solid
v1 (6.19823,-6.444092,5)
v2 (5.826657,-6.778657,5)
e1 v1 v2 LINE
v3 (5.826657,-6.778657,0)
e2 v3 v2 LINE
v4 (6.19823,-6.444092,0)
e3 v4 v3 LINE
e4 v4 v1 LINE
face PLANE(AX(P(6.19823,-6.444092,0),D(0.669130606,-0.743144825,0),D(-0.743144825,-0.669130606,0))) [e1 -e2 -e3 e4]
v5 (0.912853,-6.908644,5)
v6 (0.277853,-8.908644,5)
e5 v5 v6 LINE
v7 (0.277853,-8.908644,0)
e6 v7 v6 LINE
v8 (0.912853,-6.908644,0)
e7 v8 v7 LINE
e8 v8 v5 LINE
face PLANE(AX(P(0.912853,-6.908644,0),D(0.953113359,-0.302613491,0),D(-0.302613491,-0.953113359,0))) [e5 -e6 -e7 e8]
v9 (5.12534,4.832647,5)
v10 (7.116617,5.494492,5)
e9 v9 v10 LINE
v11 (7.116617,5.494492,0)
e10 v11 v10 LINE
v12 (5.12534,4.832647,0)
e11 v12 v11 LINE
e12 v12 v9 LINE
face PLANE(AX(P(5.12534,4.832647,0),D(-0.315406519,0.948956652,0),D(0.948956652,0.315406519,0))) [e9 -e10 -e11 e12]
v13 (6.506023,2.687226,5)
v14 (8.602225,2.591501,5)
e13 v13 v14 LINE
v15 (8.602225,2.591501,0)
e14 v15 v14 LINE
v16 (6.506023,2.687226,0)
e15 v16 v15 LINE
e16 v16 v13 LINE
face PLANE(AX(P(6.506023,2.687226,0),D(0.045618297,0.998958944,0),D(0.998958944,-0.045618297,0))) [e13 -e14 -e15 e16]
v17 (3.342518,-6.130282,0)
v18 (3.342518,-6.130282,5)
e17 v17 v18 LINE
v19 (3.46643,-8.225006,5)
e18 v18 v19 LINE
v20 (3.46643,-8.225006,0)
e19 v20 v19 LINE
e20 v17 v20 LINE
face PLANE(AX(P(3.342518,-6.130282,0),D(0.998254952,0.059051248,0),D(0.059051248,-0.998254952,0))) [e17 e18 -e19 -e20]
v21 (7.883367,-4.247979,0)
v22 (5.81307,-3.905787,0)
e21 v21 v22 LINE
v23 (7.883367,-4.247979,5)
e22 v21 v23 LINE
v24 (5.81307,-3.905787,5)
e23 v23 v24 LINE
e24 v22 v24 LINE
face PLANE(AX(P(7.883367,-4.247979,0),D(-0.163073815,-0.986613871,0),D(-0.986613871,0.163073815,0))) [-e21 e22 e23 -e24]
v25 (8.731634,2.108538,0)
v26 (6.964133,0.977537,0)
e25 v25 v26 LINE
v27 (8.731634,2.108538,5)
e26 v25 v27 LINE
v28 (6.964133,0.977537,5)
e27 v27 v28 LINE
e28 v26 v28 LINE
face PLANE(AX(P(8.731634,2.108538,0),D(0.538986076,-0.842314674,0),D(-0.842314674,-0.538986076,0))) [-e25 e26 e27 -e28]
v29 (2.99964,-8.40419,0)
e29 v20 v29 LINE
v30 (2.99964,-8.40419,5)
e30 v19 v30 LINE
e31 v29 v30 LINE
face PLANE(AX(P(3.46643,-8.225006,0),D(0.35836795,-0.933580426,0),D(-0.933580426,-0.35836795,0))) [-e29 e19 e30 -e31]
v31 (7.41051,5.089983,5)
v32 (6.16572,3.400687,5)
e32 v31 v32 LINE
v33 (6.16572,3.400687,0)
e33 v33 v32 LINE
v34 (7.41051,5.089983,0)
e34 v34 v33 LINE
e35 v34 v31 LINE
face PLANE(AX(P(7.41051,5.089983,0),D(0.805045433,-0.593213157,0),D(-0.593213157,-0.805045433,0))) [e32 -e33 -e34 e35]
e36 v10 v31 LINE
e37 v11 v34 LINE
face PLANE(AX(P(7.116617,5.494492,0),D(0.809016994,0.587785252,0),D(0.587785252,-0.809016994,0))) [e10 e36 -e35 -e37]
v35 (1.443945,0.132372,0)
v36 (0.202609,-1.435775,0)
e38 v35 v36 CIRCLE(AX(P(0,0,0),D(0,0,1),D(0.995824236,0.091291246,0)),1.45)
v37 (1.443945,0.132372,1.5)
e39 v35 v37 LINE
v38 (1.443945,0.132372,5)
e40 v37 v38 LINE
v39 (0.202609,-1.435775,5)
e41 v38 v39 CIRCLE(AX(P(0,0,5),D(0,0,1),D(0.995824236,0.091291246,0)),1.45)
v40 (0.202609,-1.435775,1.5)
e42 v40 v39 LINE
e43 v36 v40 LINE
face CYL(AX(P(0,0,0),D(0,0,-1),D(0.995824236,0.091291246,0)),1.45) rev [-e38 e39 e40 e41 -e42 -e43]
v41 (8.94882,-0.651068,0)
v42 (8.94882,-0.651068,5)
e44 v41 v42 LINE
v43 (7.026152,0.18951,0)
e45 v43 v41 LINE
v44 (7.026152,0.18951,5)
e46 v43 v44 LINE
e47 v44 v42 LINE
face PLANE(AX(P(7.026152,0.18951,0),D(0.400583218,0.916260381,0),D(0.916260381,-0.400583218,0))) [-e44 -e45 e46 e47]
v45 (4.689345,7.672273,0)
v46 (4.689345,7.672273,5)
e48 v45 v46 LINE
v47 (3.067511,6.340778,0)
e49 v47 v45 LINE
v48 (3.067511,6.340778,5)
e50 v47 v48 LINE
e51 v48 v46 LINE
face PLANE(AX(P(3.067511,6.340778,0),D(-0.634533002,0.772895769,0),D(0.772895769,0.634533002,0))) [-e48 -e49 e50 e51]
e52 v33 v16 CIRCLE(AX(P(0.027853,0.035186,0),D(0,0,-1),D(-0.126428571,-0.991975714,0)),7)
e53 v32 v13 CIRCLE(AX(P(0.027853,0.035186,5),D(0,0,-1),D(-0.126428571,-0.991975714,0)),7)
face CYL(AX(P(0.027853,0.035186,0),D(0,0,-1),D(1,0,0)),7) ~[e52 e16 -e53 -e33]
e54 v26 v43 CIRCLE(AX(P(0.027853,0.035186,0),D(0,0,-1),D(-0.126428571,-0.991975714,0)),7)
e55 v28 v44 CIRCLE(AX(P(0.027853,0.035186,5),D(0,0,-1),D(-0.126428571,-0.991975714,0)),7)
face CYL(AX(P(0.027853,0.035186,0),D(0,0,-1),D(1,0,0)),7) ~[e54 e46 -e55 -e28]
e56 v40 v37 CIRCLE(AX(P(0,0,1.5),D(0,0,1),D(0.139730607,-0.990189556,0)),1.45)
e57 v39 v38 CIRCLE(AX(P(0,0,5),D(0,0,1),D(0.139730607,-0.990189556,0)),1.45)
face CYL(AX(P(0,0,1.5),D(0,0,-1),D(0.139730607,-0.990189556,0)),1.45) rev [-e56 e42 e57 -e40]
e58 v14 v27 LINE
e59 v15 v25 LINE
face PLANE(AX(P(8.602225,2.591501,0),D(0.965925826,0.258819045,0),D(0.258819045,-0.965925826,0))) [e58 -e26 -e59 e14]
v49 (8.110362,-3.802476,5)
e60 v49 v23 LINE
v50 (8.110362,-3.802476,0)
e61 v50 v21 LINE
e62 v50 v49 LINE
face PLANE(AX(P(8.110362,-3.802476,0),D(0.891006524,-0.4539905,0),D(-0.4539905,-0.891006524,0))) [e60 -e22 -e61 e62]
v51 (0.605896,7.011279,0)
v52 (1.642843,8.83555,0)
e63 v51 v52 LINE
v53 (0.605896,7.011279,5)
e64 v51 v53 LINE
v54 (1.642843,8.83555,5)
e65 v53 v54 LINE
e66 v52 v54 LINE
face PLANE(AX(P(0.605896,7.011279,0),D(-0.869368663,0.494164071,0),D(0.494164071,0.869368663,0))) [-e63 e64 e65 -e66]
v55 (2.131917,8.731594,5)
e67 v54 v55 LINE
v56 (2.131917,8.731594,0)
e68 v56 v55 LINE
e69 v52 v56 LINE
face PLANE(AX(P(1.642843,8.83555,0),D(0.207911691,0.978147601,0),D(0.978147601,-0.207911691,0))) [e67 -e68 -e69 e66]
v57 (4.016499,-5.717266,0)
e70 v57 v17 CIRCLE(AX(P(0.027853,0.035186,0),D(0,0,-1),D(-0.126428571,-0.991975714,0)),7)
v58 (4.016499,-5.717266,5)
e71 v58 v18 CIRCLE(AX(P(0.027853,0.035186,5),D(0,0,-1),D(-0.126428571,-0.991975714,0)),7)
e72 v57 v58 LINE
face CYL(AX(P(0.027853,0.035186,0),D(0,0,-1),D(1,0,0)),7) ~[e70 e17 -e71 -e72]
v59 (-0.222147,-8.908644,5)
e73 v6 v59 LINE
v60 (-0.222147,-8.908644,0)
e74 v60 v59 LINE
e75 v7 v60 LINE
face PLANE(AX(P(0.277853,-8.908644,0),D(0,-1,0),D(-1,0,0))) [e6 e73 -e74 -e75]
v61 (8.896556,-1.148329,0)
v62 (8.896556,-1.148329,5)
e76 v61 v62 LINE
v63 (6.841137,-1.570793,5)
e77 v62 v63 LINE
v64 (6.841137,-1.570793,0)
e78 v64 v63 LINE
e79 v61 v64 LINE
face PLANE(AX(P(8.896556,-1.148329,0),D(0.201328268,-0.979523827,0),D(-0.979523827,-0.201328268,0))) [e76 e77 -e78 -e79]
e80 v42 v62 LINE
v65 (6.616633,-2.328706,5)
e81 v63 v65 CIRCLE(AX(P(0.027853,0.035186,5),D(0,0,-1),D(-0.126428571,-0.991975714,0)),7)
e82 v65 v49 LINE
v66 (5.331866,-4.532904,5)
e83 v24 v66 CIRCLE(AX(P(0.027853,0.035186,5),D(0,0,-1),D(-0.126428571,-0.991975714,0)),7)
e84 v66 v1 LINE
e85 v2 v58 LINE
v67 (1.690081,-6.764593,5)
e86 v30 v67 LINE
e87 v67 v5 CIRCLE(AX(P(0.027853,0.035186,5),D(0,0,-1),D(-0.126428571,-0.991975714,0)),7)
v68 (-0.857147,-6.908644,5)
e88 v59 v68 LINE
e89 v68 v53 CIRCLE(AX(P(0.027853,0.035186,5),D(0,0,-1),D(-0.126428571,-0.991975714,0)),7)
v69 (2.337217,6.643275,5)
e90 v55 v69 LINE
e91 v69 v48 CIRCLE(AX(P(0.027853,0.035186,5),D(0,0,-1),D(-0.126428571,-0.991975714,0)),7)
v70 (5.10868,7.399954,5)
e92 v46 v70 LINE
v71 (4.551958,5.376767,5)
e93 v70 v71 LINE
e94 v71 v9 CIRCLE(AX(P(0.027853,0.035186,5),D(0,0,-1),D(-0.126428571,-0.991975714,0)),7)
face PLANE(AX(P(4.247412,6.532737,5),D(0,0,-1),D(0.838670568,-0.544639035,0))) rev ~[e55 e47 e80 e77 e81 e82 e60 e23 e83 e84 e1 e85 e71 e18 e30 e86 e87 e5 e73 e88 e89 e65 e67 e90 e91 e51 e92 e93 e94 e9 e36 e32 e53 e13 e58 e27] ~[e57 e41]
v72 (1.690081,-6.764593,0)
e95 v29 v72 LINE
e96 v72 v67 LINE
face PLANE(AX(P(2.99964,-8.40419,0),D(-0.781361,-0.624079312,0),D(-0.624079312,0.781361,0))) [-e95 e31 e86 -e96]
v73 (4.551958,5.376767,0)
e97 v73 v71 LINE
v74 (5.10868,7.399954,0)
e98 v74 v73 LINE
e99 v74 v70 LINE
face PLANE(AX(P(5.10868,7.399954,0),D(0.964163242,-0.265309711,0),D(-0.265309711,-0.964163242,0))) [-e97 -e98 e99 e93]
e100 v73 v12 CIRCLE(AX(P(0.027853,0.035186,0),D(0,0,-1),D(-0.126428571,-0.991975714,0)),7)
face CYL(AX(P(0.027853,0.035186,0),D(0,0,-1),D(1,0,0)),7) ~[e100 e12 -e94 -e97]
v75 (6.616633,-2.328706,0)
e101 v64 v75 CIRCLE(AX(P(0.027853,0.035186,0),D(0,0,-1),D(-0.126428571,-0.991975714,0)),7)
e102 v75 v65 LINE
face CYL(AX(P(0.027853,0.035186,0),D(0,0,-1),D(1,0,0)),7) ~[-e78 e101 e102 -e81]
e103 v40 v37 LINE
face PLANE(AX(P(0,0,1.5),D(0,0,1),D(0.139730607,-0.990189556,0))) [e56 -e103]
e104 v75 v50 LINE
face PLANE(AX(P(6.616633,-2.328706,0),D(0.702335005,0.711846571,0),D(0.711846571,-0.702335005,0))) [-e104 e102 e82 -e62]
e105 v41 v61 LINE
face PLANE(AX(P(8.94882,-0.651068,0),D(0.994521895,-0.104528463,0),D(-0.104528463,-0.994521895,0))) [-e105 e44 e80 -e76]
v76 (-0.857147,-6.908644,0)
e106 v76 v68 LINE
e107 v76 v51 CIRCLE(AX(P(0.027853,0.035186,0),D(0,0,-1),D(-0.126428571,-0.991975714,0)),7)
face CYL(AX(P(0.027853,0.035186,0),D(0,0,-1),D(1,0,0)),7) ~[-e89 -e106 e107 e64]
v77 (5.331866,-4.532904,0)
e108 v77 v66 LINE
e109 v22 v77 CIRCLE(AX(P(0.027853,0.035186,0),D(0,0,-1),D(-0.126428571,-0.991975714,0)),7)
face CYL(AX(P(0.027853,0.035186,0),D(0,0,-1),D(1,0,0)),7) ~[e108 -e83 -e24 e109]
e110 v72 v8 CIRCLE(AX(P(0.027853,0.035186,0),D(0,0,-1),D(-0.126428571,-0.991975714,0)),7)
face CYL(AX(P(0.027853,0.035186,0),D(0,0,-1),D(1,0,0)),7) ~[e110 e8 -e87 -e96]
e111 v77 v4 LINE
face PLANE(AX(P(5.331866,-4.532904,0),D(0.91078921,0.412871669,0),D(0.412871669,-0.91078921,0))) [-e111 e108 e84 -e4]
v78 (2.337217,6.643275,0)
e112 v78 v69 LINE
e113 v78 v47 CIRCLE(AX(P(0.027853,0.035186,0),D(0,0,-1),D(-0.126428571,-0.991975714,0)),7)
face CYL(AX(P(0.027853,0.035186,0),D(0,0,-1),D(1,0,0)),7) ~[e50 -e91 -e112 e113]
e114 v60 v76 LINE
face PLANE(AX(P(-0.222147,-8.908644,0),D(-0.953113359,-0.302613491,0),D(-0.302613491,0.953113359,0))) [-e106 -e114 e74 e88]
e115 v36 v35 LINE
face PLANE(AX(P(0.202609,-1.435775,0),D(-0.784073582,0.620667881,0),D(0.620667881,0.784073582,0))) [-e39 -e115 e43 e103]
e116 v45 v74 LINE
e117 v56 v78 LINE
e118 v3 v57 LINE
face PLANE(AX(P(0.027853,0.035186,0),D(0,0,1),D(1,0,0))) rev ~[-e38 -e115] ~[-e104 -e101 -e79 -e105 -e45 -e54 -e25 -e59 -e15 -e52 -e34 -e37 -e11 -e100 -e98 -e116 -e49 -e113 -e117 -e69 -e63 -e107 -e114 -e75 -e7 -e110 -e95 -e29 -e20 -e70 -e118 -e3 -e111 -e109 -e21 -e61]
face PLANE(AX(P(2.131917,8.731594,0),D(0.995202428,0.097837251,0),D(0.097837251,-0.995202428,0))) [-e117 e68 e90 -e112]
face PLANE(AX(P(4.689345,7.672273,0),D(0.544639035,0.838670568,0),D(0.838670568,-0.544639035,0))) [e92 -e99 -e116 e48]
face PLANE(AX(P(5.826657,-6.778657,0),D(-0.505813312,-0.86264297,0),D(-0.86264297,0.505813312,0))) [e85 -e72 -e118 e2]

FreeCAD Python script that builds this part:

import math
import FreeCAD as App
import Part
import Sketcher
Q = App.Units.Quantity


def add_polygon(sketch, points):
    """Adds a closed chain of lines whose ends are joined by coincident constraints."""
    first, n = sketch.GeometryCount, len(points)
    for a, b in zip(points, points[1:] + points[:1]):
        sketch.addGeometry(Part.LineSegment(App.Vector(*a, 0), App.Vector(*b, 0)), False)
    for i in range(n):
        sketch.addConstraint(Sketcher.Constraint("Coincident", first + i, 2, first + (i + 1) % n, 1))

doc = App.newDocument("Part")
params = doc.addObject("Spreadsheet::Sheet", "Params")
for row, (alias, value) in enumerate([
    ("sketch1_diameter", "14 mm"),
    ("sketch1_radius", "1.45 mm"),
    ("sketch1_length", "2 mm"),
    ("pad1_length", "5 mm"),
    ("sketch2_width", "0.5 mm"),
    ("sketch2_width2", "1.77 mm"),
    ("pad2_length", "5 mm"),
    ("sketch3_diameter", "2.9 mm"),
    ("pocket1_length", "3.5 mm"),
], start=1):
    params.set(f"A{row}", alias)
    params.set(f"B{row}", "=" + value)
    params.setAlias(f"B{row}", alias)

body = doc.addObject("PartDesign::Body", "Body")

# Sketch on XY plane
sketch1 = body.newObject("Sketcher::SketchObject", "Sketch")
sketch1.AttachmentSupport = (doc.getObject("XY_Plane"), [""])
sketch1.MapMode = "FlatFace"
sketch1.addGeometry([
    Part.Circle(App.Vector(0.027853, 0.035186, 0), App.Vector(0, 0, 1), 7),
    Part.LineSegment(App.Vector(1.443945, 0.132372, 0), App.Vector(0.202609, -1.435775, 0)),
    Part.ArcOfCircle(Part.Circle(App.Vector(0, 0, 0), App.Vector(0, 0, 1), 1.45), math.radians(5.237896), math.radians(278.032258)),
], False)
sketch1.addConstraint([
    Sketcher.Constraint("Coincident", 1, 1, 2, 1),
    Sketcher.Constraint("Coincident", 2, 2, 1, 2),
    Sketcher.Constraint("Coincident", 2, 3, -1, 1),
    Sketcher.Constraint("Diameter", 0, Q("14 mm")),
    Sketcher.Constraint("Radius", 2, Q("1.45 mm")),
    Sketcher.Constraint("Distance", 1, Q("2 mm")),
    Sketcher.Constraint("DistanceX", -1, 1, 2, 2, Q("0.202609 mm")),
    Sketcher.Constraint("DistanceX", 0, 3, 1, 1, Q("1.416092 mm")),
    Sketcher.Constraint("DistanceY", 2, 2, 0, 3, Q("1.470961 mm")),
])
sketch1.setExpression("Constraints[3]", "Params.sketch1_diameter")
sketch1.setExpression("Constraints[4]", "Params.sketch1_radius")
sketch1.setExpression("Constraints[5]", "Params.sketch1_length")
pad1 = body.newObject("PartDesign::Pad", "Pad")
pad1.Profile = sketch1
pad1.setExpression("Length", "Params.pad1_length")

# Sketch on XY plane
sketch2 = body.newObject("Sketcher::SketchObject", "Sketch001")
sketch2.AttachmentSupport = (doc.getObject("XY_Plane"), [""])
sketch2.MapMode = "FlatFace"
add_polygon(sketch2, [(-0.857147, -6.908644), (0.912853, -6.908644), (0.277853, -8.908644), (-0.222147, -8.908644)])  # lines 0-3
sketch2.addConstraint([
    Sketcher.Constraint("Horizontal", 0),
    Sketcher.Constraint("Horizontal", 2),
    Sketcher.Constraint("Equal", 1, 3),
    Sketcher.Constraint("DistanceX", 2, 2, 2, 1, Q("0.5 mm")),
    Sketcher.Constraint("DistanceY", 1, 2, 0, 2, Q("2 mm")),
    Sketcher.Constraint("DistanceX", 0, 1, 0, 2, Q("1.77 mm")),
    Sketcher.Constraint("DistanceX", -1, 1, 0, 2, Q("0.912853 mm")),
    Sketcher.Constraint("DistanceY", 0, 2, -1, 1, Q("6.908644 mm")),
])
sketch2.setExpression("Constraints[7]", "Params.sketch2_width")
sketch2.setExpression("Constraints[9]", "Params.sketch2_width2")
pad2 = body.newObject("PartDesign::Pad", "Pad001")
pad2.Profile = sketch2
pad2.setExpression("Length", "Params.pad2_length")
doc.recompute()

datumline = body.newObject("PartDesign::Line", "DatumLine")
datumline.Placement = App.Placement(App.Vector(0.027853, 0.035186, 0), App.Rotation(App.Vector(0, 0, 1), App.Vector(0, 0, 1)))
polarpattern = body.newObject("PartDesign::PolarPattern", "PolarPattern")
polarpattern.Originals = [pad2]
polarpattern.Axis = (datumline, [""])
polarpattern.Angle = 168
polarpattern.Occurrences = 9
body.Tip = polarpattern

# Sketch on XY plane
sketch3 = body.newObject("Sketcher::SketchObject", "Sketch002")
sketch3.AttachmentSupport = (doc.getObject("XY_Plane"), [""])
sketch3.MapMode = "FlatFace"
sketch3.AttachmentOffset = App.Placement(App.Vector(0, 0, 1.5), App.Rotation())
sketch3.addGeometry(Part.Circle(App.Vector(0, 0, 0), App.Vector(0, 0, 1), 1.45), False)
sketch3.addConstraint([
    Sketcher.Constraint("Coincident", 0, 3, -1, 1),
    Sketcher.Constraint("Diameter", 0, Q("2.9 mm")),
])
sketch3.setExpression("Constraints[1]", "Params.sketch3_diameter")
pocket1 = body.newObject("PartDesign::Pocket", "Pocket")
pocket1.Profile = sketch3
pocket1.setExpression("Length", "Params.pocket1_length")
pocket1.Reversed = True

doc.recompute()
